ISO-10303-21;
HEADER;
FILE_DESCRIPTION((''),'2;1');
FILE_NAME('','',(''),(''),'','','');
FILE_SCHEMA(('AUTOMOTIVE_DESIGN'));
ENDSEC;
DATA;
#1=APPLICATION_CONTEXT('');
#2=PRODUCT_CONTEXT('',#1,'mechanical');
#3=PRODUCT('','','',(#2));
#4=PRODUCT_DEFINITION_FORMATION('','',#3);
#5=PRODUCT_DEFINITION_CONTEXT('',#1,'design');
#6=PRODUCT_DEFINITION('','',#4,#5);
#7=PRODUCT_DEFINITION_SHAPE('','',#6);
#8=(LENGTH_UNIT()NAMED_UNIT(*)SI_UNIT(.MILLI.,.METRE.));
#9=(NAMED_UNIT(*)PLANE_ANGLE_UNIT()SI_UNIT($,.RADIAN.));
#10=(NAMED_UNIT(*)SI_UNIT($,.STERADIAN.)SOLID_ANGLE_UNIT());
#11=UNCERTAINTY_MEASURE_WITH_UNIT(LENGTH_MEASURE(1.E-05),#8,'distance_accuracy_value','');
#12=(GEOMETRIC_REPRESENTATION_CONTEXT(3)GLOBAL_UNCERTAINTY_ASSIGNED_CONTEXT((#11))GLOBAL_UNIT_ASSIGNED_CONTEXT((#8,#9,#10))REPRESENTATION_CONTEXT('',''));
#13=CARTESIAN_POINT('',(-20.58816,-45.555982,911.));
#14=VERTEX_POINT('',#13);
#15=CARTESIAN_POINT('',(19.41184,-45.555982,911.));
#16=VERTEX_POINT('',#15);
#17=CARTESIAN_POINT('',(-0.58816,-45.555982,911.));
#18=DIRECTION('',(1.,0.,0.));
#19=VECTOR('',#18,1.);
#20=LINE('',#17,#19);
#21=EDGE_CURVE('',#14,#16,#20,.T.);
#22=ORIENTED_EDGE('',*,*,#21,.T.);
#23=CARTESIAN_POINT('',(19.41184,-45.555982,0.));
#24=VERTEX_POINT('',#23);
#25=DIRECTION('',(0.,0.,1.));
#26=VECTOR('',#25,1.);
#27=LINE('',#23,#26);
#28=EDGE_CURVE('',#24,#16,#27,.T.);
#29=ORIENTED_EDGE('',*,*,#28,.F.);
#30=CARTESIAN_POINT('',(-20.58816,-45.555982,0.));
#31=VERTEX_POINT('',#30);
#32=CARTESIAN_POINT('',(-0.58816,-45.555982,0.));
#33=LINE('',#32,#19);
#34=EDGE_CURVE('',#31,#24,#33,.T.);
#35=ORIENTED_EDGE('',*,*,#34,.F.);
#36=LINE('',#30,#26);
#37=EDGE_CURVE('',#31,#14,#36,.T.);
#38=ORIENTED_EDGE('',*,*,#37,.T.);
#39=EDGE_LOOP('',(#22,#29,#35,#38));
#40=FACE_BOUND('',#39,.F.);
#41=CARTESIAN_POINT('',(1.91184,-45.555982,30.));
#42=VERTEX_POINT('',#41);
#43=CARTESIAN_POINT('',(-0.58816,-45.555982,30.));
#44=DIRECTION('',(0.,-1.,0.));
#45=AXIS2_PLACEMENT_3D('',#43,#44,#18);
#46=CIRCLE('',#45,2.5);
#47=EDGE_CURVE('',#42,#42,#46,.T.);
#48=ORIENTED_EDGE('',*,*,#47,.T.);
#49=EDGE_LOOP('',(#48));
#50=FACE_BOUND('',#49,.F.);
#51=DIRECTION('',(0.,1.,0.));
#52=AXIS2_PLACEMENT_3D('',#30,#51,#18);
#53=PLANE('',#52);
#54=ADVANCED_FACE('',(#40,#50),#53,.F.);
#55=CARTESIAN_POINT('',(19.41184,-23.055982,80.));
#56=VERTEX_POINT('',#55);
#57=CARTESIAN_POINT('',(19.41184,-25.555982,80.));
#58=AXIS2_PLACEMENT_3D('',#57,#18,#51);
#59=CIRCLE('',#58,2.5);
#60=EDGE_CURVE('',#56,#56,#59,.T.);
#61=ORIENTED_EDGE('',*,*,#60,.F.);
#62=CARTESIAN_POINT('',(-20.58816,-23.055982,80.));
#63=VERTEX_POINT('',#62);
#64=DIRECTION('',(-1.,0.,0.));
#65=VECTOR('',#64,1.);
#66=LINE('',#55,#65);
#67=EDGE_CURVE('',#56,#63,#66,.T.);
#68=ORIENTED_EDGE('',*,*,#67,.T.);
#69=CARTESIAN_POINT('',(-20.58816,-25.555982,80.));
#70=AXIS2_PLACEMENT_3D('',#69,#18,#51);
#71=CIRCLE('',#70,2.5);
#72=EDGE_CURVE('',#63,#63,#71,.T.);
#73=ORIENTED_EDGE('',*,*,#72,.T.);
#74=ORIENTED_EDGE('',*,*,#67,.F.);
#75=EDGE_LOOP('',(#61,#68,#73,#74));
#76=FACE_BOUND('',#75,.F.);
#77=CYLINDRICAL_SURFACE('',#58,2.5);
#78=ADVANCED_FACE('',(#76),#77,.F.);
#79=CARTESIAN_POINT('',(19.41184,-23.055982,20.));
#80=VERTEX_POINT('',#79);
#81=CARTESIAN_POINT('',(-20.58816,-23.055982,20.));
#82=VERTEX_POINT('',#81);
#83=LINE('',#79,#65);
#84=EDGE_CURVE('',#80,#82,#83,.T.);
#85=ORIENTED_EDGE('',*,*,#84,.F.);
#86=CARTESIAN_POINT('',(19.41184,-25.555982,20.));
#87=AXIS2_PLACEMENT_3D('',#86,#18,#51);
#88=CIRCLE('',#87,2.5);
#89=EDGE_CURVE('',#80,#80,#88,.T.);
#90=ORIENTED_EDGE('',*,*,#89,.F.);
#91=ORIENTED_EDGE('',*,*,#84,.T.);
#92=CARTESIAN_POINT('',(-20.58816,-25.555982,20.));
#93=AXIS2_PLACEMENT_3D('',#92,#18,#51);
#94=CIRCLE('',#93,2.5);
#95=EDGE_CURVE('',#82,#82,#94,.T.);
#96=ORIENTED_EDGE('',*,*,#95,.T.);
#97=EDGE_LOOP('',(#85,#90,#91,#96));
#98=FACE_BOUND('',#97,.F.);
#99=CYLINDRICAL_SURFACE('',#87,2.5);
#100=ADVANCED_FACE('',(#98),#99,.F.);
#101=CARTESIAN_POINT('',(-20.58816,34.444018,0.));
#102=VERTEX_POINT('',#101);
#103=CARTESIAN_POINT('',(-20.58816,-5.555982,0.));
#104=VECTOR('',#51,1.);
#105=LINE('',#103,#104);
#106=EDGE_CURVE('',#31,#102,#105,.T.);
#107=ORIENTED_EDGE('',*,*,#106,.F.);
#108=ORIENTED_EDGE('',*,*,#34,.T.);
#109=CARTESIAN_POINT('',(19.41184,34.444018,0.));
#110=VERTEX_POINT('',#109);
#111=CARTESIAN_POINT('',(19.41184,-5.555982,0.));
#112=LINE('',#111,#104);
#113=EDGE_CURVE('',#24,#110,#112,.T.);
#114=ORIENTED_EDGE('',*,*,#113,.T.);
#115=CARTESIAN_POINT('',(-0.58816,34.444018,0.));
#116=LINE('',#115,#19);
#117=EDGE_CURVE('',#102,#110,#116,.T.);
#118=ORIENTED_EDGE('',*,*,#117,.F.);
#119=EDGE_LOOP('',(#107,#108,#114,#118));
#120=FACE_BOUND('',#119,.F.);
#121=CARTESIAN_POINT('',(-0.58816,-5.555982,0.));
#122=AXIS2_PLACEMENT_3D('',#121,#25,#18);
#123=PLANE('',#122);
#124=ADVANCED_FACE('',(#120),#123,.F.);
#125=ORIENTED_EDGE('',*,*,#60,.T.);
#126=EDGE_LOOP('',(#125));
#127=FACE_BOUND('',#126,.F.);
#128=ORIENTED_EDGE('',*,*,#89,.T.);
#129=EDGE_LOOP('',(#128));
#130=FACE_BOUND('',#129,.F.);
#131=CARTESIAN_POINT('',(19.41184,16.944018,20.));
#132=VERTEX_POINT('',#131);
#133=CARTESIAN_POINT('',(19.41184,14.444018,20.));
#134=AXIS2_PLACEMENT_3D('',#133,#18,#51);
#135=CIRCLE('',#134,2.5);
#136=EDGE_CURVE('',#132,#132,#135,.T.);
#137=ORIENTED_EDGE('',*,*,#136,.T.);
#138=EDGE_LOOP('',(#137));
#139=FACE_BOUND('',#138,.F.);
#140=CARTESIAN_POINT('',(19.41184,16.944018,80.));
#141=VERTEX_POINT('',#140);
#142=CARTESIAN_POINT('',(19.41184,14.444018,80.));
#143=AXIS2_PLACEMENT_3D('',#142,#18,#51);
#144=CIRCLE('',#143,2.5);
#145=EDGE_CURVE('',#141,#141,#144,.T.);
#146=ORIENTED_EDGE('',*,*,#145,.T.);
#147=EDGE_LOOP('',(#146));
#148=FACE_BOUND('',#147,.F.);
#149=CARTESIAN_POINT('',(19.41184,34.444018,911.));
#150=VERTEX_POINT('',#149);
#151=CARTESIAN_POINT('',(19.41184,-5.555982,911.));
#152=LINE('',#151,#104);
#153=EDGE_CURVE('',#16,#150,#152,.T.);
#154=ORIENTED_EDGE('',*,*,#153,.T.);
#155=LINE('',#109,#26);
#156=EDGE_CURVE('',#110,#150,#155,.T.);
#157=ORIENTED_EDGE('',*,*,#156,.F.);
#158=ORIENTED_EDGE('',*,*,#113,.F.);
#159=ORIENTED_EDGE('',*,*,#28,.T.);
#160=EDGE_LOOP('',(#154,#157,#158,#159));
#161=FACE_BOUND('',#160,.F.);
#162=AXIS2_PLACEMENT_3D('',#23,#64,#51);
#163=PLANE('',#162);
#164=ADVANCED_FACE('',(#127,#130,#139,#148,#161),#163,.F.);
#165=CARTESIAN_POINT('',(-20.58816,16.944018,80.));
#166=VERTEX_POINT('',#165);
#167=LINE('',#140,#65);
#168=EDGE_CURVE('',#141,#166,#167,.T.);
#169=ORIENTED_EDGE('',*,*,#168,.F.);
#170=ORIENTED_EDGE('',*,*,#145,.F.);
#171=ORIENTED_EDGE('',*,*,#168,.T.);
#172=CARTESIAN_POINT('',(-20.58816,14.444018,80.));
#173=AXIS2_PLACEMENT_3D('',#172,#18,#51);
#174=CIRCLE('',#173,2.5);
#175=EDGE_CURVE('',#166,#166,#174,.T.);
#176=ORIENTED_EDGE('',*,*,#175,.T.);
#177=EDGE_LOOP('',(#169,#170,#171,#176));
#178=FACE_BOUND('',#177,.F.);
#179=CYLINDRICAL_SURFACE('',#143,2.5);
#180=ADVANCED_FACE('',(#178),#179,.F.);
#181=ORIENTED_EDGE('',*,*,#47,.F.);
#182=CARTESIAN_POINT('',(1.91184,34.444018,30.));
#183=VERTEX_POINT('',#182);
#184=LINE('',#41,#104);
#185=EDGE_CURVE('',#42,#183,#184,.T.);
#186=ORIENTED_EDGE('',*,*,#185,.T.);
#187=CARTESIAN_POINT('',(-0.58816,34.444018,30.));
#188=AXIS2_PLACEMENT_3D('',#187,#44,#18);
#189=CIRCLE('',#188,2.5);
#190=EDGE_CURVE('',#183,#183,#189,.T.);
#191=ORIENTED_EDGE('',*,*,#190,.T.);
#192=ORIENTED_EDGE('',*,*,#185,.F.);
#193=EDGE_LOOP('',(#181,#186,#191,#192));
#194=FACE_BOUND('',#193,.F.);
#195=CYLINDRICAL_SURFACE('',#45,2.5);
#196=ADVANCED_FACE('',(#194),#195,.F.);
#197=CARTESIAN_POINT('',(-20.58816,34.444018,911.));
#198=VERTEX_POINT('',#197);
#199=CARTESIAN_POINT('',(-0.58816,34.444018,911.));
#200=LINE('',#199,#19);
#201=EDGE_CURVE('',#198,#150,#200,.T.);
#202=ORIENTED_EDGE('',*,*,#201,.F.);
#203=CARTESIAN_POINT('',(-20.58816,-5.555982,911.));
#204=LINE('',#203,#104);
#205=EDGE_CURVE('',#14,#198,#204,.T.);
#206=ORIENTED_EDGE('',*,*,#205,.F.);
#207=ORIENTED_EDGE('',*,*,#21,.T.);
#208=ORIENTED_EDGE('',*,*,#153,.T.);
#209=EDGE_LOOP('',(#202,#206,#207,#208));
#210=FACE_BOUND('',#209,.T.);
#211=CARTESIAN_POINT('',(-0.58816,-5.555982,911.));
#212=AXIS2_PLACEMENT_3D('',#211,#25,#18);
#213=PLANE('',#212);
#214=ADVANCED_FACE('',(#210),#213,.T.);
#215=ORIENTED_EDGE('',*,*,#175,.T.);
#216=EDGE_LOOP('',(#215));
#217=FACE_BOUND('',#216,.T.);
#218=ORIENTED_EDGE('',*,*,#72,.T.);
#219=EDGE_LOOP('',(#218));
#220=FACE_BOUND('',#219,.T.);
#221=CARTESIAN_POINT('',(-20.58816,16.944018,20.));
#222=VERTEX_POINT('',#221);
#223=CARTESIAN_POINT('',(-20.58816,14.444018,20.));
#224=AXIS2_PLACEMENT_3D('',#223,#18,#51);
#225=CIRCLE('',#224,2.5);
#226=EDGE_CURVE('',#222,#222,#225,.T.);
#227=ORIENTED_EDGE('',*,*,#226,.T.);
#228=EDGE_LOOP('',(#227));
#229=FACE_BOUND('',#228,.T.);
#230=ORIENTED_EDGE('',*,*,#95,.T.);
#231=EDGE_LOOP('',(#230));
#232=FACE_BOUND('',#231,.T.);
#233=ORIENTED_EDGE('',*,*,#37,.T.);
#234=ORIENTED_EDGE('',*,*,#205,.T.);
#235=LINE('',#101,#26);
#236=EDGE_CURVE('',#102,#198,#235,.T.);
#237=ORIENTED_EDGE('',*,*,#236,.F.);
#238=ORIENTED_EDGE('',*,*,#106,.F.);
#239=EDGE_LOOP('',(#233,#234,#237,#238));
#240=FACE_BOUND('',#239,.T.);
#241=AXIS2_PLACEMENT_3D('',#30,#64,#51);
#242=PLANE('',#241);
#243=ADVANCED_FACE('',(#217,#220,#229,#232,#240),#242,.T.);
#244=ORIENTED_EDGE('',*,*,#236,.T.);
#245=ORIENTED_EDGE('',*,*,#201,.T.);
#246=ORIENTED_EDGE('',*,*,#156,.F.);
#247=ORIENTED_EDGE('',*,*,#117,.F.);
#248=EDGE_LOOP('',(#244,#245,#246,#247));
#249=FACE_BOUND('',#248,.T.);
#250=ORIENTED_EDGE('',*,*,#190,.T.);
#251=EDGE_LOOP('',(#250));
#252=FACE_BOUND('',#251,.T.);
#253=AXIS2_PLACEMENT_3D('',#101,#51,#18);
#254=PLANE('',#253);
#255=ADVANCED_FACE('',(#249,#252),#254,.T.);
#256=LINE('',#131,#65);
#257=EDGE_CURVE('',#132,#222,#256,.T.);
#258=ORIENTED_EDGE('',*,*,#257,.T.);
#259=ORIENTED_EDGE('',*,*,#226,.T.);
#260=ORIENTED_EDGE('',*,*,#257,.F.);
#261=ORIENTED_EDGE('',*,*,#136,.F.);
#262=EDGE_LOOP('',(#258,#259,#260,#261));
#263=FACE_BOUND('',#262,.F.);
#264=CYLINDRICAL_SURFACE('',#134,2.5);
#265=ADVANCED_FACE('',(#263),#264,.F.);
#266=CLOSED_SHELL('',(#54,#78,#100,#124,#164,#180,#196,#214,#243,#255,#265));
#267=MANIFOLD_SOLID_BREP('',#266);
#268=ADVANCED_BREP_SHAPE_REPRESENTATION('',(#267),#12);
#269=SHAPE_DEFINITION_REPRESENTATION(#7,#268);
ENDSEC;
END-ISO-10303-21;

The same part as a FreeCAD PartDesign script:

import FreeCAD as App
import Part
import Sketcher
Q = App.Units.Quantity


def add_polygon(sketch, points):
    """Adds a closed chain of lines whose ends are joined by coincident constraints."""
    first, n = sketch.GeometryCount, len(points)
    for a, b in zip(points, points[1:] + points[:1]):
        sketch.addGeometry(Part.LineSegment(App.Vector(*a, 0), App.Vector(*b, 0)), False)
    for i in range(n):
        sketch.addConstraint(Sketcher.Constraint("Coincident", first + i, 2, first + (i + 1) % n, 1))

doc = App.newDocument("Part")
body = doc.addObject("PartDesign::Body", "Body")

sketch1 = body.newObject("Sketcher::SketchObject", "Sketch")
sketch1.AttachmentSupport = (doc.getObject("XY_Plane"), [""])
sketch1.MapMode = "FlatFace"
add_polygon(sketch1, [(-20.58816, 34.444018), (-20.58816, -45.555982), (19.41184, -45.555982), (19.41184, 34.444018)])
sketch1.addConstraint([
    Sketcher.Constraint("Vertical", 0),
    Sketcher.Constraint("Horizontal", 1),
    Sketcher.Constraint("Vertical", 2),
    Sketcher.Constraint("Horizontal", 3),
    Sketcher.Constraint("DistanceX", 1, 1, 1, 2, Q("40 mm")),
    Sketcher.Constraint("DistanceY", 0, 2, 0, 1, Q("80 mm")),
    Sketcher.Constraint("DistanceX", 0, 2, -1, 1, Q("20.58816 mm")),
    Sketcher.Constraint("DistanceY", 0, 2, -1, 1, Q("45.555982 mm")),
])
pad1 = body.newObject("PartDesign::Pad", "Pad")
pad1.Profile = sketch1
pad1.Length = 911

sketch2 = body.newObject("Sketcher::SketchObject", "Sketch001")
sketch2.AttachmentSupport = (doc.getObject("YZ_Plane"), [""])
sketch2.MapMode = "FlatFace"
sketch2.AttachmentOffset = App.Placement(App.Vector(0, 0, 19.41184), App.Rotation())
sketch2.addGeometry([
    Part.Circle(App.Vector(-25.555982, 80, 0), App.Vector(0, 0, 1), 2.5),
    Part.Circle(App.Vector(14.444018, 80, 0), App.Vector(0, 0, 1), 2.5),
    Part.Circle(App.Vector(14.444018, 20, 0), App.Vector(0, 0, 1), 2.5),
    Part.Circle(App.Vector(-25.555982, 20, 0), App.Vector(0, 0, 1), 2.5),
], False)
sketch2.addConstraint([
    Sketcher.Constraint("Equal", 0, 1),
    Sketcher.Constraint("Equal", 1, 2),
    Sketcher.Constraint("Equal", 2, 3),
    Sketcher.Constraint("Horizontal", 0, 3, 1, 3),
    Sketcher.Constraint("Horizontal", 2, 3, 3, 3),
    Sketcher.Constraint("Vertical", 1, 3, 2, 3),
    Sketcher.Constraint("Vertical", 0, 3, 3, 3),
    Sketcher.Constraint("Diameter", 0, Q("5 mm")),
    Sketcher.Constraint("DistanceY", -1, 1, 0, 3, Q("80 mm")),
    Sketcher.Constraint("DistanceY", -1, 1, 2, 3, Q("20 mm")),
    Sketcher.Constraint("DistanceX", 0, 3, 1, 3, Q("40 mm")),
    Sketcher.Constraint("DistanceX", 0, 3, -1, 1, Q("25.555982 mm")),
])
pocket1 = body.newObject("PartDesign::Pocket", "Pocket")
pocket1.Profile = sketch2
pocket1.Type = "ThroughAll"

sketch3 = body.newObject("Sketcher::SketchObject", "Sketch002")
sketch3.AttachmentSupport = (doc.getObject("XZ_Plane"), [""])
sketch3.MapMode = "FlatFace"
sketch3.AttachmentOffset = App.Placement(App.Vector(0, 0, 45.555982), App.Rotation())
sketch3.addGeometry(Part.Circle(App.Vector(-0.58816, 30, 0), App.Vector(0, 0, 1), 2.5), False)
sketch3.addConstraint([
    Sketcher.Constraint("Diameter", 0, Q("5 mm")),
    Sketcher.Constraint("DistanceY", -1, 1, 0, 3, Q("30 mm")),
    Sketcher.Constraint("DistanceX", 0, 3, -1, 1, Q("0.58816 mm")),
])
pocket2 = body.newObject("PartDesign::Pocket", "Pocket001")
pocket2.Profile = sketch3
pocket2.Type = "ThroughAll"

doc.recompute()
